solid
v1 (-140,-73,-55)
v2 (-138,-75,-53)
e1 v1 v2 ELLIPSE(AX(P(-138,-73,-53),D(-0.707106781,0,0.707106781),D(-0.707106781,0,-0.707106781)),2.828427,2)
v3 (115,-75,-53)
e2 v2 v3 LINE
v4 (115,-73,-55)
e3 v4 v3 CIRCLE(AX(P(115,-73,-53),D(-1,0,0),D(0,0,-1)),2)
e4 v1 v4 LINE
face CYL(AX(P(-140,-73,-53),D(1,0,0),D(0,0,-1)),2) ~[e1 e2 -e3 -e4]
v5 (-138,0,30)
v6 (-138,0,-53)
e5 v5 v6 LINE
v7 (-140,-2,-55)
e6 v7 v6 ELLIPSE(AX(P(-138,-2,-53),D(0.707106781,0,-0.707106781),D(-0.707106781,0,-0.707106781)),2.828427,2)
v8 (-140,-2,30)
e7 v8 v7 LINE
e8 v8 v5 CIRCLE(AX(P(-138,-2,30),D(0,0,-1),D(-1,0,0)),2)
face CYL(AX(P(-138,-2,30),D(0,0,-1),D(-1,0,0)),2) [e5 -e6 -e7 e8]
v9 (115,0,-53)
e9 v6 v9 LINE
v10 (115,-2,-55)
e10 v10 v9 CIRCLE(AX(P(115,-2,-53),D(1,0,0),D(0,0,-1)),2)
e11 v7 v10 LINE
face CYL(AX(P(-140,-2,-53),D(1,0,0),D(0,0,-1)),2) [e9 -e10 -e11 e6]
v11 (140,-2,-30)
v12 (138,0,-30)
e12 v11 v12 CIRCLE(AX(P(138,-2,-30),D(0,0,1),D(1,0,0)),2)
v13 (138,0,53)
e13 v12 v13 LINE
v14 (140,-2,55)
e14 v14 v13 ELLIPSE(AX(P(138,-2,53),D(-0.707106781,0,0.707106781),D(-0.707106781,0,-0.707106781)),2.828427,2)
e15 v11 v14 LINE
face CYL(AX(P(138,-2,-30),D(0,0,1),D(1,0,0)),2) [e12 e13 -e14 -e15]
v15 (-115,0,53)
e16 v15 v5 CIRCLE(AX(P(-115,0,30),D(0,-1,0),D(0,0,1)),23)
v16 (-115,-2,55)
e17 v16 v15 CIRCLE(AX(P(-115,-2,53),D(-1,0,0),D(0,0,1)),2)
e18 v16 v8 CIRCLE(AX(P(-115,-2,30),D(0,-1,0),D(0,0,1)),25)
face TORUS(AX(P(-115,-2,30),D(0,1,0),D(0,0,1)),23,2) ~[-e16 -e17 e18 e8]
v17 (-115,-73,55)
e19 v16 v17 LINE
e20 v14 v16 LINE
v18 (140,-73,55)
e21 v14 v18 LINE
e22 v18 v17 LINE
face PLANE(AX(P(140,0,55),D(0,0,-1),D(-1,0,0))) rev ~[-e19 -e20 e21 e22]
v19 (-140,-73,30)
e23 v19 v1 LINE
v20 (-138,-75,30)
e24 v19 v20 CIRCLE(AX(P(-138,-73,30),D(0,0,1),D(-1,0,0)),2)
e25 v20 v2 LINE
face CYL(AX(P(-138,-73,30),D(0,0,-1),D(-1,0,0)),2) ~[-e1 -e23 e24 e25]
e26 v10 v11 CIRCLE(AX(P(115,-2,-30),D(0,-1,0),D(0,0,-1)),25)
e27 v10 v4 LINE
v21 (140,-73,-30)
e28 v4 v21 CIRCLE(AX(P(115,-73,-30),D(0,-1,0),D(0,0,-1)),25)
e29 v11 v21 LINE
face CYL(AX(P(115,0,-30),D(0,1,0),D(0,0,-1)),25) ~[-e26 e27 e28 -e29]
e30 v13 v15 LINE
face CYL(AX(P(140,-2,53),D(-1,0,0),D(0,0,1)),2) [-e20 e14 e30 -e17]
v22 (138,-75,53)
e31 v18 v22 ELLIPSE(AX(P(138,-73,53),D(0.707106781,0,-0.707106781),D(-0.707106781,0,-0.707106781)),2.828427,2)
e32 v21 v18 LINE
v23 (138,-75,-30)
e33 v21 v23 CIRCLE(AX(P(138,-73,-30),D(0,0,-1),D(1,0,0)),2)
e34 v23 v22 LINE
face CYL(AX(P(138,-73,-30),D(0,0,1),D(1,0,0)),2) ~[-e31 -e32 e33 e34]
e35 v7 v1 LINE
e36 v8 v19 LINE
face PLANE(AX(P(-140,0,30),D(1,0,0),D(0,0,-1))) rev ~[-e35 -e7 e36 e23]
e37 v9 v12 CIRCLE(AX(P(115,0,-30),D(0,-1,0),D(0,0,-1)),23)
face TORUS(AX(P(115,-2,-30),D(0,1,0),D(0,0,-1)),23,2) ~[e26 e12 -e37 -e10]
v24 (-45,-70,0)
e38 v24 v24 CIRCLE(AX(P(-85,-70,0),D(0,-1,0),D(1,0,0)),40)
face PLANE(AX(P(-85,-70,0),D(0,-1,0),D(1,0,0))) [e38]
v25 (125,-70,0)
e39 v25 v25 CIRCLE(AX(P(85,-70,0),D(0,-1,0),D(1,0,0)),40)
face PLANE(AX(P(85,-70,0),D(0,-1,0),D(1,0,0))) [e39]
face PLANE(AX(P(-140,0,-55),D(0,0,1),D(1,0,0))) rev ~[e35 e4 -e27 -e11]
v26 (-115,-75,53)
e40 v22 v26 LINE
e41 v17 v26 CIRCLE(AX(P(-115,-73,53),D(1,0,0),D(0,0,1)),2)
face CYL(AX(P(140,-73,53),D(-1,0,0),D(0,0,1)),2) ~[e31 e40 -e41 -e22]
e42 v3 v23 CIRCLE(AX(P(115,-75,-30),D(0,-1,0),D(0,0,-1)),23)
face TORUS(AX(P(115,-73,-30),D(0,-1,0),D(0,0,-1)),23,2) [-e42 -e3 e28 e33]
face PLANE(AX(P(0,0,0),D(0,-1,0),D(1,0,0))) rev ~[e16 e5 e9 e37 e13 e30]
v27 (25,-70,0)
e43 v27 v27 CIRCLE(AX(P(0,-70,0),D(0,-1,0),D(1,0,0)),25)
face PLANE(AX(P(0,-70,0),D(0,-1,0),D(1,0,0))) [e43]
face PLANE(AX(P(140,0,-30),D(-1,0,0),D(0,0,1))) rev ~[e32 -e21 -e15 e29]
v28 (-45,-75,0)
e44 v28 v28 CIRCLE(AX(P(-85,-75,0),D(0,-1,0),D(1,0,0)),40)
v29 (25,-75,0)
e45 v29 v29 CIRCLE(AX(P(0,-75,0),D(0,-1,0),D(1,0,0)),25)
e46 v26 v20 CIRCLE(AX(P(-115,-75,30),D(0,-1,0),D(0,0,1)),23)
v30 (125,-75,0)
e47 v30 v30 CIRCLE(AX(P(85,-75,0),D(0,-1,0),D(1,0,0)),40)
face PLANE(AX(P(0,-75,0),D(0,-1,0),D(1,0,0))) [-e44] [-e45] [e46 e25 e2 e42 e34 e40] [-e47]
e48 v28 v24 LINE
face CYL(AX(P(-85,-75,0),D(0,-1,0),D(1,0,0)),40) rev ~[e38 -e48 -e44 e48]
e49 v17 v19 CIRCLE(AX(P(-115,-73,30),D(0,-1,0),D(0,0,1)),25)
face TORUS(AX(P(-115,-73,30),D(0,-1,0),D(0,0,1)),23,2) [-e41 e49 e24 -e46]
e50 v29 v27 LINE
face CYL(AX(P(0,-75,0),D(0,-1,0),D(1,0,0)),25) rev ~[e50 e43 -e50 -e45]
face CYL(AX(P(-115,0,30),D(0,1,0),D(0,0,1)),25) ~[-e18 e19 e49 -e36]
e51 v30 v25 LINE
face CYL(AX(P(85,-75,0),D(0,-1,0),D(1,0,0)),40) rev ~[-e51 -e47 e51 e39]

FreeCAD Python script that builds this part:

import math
import FreeCAD as App
import Part
import Sketcher


def edges_at(feature, points):
    """Names of the edges that pass closest to the given points."""
    edges = feature.Shape.Edges
    near = lambda p: min(range(len(edges)), key=lambda i: edges[i].distToShape(Part.Vertex(*p))[0])
    return sorted({f"Edge{near(p) + 1}" for p in points})

doc = App.newDocument("Part")
body = doc.addObject("PartDesign::Body", "Body")

# Sketch on XZ plane
sketch1 = doc.addObject("Sketcher::SketchObject", "Sketch")
body.addObject(sketch1)
sketch1.AttachmentSupport = (doc.XZ_Plane, [""])
sketch1.MapMode = "FlatFace"
sketch1.addGeometry([
    Part.LineSegment(App.Vector(-140, 30, 0), App.Vector(-140, -55, 0)),  # 0
    Part.LineSegment(App.Vector(-140, -55, 0), App.Vector(115, -55, 0)),  # 1
    Part.ArcOfCircle(Part.Circle(App.Vector(115, -30, 0), App.Vector(0, 0, 1), 25), math.radians(-90), math.radians(0)),  # 2
    Part.LineSegment(App.Vector(140, -30, 0), App.Vector(140, 55, 0)),  # 3
    Part.LineSegment(App.Vector(140, 55, 0), App.Vector(-115, 55, 0)),  # 4
    Part.ArcOfCircle(Part.Circle(App.Vector(-115, 30, 0), App.Vector(0, 0, 1), 25), math.radians(90), math.radians(180)),  # 5
], False)
sketch1.addConstraint([
    Sketcher.Constraint("Coincident", 0, 2, 1, 1),
    Sketcher.Constraint("Tangent", 1, 2, 2, 1),
    Sketcher.Constraint("Tangent", 2, 2, 3, 1),
    Sketcher.Constraint("Coincident", 3, 2, 4, 1),
    Sketcher.Constraint("Tangent", 4, 2, 5, 1),
    Sketcher.Constraint("Tangent", 5, 2, 0, 1),
    Sketcher.Constraint("Vertical", 0),
    Sketcher.Constraint("Horizontal", 1),
    Sketcher.Constraint("Vertical", 3),
    Sketcher.Constraint("Horizontal", 4),
    Sketcher.Constraint("Equal", 2, 5),
    Sketcher.Constraint("Symmetric", 2, 3, 5, 3, -1, 1),
    Sketcher.Constraint("Radius", 2, 25.0),
    Sketcher.Constraint("DistanceX", 1, 1, 1, 2, 255.0),
    Sketcher.Constraint("DistanceY", 0, 2, 0, 1, 85.0),
])
pad1 = doc.addObject("PartDesign::Pad", "Pad")
body.addObject(pad1)
pad1.Profile = sketch1
pad1.Length = 75
doc.recompute()

fillet = doc.addObject("PartDesign::Fillet", "Fillet")
body.addObject(fillet)
fillet.Base = (pad1, edges_at(pad1, [
    (-132.678, -75, 47.678),
    (-140, -75, -12.5),
    (-12.5, -75, -55),
    (132.678, -75, -47.678),
    (140, -75, 12.5),
    (12.5, -75, 55),
    (-132.678, 0, 47.678),
    (-140, 0, -12.5),
    (-12.5, 0, -55),
    (132.678, 0, -47.678),
    (140, 0, 12.5),
    (12.5, 0, 55),
]))
fillet.Radius = 2

# Sketch on XZ plane
sketch2 = doc.addObject("Sketcher::SketchObject", "Sketch001")
body.addObject(sketch2)
sketch2.AttachmentSupport = (doc.XZ_Plane, [""])
sketch2.MapMode = "FlatFace"
sketch2.AttachmentOffset = App.Placement(App.Vector(0, 0, 75), App.Rotation())
sketch2.addGeometry([
    Part.Circle(App.Vector(0, 0, 0), App.Vector(0, 0, 1), 25),
    Part.Circle(App.Vector(-85, 0, 0), App.Vector(0, 0, 1), 40),
    Part.Circle(App.Vector(85, 0, 0), App.Vector(0, 0, 1), 40),
], False)
sketch2.addConstraint([
    Sketcher.Constraint("Coincident", 0, 3, -1, 1),
    Sketcher.Constraint("Equal", 1, 2),
    Sketcher.Constraint("Symmetric", 1, 3, 2, 3, -1, 1),
    Sketcher.Constraint("PointOnObject", 1, 3, -1),
    Sketcher.Constraint("Diameter", 0, 50.0),
    Sketcher.Constraint("Diameter", 1, 80.0),
    Sketcher.Constraint("DistanceX", 1, 3, -1, 1, 85.0),
])
pocket1 = doc.addObject("PartDesign::Pocket", "Pocket")
body.addObject(pocket1)
pocket1.Profile = sketch2
pocket1.Length = 5

doc.recompute()
